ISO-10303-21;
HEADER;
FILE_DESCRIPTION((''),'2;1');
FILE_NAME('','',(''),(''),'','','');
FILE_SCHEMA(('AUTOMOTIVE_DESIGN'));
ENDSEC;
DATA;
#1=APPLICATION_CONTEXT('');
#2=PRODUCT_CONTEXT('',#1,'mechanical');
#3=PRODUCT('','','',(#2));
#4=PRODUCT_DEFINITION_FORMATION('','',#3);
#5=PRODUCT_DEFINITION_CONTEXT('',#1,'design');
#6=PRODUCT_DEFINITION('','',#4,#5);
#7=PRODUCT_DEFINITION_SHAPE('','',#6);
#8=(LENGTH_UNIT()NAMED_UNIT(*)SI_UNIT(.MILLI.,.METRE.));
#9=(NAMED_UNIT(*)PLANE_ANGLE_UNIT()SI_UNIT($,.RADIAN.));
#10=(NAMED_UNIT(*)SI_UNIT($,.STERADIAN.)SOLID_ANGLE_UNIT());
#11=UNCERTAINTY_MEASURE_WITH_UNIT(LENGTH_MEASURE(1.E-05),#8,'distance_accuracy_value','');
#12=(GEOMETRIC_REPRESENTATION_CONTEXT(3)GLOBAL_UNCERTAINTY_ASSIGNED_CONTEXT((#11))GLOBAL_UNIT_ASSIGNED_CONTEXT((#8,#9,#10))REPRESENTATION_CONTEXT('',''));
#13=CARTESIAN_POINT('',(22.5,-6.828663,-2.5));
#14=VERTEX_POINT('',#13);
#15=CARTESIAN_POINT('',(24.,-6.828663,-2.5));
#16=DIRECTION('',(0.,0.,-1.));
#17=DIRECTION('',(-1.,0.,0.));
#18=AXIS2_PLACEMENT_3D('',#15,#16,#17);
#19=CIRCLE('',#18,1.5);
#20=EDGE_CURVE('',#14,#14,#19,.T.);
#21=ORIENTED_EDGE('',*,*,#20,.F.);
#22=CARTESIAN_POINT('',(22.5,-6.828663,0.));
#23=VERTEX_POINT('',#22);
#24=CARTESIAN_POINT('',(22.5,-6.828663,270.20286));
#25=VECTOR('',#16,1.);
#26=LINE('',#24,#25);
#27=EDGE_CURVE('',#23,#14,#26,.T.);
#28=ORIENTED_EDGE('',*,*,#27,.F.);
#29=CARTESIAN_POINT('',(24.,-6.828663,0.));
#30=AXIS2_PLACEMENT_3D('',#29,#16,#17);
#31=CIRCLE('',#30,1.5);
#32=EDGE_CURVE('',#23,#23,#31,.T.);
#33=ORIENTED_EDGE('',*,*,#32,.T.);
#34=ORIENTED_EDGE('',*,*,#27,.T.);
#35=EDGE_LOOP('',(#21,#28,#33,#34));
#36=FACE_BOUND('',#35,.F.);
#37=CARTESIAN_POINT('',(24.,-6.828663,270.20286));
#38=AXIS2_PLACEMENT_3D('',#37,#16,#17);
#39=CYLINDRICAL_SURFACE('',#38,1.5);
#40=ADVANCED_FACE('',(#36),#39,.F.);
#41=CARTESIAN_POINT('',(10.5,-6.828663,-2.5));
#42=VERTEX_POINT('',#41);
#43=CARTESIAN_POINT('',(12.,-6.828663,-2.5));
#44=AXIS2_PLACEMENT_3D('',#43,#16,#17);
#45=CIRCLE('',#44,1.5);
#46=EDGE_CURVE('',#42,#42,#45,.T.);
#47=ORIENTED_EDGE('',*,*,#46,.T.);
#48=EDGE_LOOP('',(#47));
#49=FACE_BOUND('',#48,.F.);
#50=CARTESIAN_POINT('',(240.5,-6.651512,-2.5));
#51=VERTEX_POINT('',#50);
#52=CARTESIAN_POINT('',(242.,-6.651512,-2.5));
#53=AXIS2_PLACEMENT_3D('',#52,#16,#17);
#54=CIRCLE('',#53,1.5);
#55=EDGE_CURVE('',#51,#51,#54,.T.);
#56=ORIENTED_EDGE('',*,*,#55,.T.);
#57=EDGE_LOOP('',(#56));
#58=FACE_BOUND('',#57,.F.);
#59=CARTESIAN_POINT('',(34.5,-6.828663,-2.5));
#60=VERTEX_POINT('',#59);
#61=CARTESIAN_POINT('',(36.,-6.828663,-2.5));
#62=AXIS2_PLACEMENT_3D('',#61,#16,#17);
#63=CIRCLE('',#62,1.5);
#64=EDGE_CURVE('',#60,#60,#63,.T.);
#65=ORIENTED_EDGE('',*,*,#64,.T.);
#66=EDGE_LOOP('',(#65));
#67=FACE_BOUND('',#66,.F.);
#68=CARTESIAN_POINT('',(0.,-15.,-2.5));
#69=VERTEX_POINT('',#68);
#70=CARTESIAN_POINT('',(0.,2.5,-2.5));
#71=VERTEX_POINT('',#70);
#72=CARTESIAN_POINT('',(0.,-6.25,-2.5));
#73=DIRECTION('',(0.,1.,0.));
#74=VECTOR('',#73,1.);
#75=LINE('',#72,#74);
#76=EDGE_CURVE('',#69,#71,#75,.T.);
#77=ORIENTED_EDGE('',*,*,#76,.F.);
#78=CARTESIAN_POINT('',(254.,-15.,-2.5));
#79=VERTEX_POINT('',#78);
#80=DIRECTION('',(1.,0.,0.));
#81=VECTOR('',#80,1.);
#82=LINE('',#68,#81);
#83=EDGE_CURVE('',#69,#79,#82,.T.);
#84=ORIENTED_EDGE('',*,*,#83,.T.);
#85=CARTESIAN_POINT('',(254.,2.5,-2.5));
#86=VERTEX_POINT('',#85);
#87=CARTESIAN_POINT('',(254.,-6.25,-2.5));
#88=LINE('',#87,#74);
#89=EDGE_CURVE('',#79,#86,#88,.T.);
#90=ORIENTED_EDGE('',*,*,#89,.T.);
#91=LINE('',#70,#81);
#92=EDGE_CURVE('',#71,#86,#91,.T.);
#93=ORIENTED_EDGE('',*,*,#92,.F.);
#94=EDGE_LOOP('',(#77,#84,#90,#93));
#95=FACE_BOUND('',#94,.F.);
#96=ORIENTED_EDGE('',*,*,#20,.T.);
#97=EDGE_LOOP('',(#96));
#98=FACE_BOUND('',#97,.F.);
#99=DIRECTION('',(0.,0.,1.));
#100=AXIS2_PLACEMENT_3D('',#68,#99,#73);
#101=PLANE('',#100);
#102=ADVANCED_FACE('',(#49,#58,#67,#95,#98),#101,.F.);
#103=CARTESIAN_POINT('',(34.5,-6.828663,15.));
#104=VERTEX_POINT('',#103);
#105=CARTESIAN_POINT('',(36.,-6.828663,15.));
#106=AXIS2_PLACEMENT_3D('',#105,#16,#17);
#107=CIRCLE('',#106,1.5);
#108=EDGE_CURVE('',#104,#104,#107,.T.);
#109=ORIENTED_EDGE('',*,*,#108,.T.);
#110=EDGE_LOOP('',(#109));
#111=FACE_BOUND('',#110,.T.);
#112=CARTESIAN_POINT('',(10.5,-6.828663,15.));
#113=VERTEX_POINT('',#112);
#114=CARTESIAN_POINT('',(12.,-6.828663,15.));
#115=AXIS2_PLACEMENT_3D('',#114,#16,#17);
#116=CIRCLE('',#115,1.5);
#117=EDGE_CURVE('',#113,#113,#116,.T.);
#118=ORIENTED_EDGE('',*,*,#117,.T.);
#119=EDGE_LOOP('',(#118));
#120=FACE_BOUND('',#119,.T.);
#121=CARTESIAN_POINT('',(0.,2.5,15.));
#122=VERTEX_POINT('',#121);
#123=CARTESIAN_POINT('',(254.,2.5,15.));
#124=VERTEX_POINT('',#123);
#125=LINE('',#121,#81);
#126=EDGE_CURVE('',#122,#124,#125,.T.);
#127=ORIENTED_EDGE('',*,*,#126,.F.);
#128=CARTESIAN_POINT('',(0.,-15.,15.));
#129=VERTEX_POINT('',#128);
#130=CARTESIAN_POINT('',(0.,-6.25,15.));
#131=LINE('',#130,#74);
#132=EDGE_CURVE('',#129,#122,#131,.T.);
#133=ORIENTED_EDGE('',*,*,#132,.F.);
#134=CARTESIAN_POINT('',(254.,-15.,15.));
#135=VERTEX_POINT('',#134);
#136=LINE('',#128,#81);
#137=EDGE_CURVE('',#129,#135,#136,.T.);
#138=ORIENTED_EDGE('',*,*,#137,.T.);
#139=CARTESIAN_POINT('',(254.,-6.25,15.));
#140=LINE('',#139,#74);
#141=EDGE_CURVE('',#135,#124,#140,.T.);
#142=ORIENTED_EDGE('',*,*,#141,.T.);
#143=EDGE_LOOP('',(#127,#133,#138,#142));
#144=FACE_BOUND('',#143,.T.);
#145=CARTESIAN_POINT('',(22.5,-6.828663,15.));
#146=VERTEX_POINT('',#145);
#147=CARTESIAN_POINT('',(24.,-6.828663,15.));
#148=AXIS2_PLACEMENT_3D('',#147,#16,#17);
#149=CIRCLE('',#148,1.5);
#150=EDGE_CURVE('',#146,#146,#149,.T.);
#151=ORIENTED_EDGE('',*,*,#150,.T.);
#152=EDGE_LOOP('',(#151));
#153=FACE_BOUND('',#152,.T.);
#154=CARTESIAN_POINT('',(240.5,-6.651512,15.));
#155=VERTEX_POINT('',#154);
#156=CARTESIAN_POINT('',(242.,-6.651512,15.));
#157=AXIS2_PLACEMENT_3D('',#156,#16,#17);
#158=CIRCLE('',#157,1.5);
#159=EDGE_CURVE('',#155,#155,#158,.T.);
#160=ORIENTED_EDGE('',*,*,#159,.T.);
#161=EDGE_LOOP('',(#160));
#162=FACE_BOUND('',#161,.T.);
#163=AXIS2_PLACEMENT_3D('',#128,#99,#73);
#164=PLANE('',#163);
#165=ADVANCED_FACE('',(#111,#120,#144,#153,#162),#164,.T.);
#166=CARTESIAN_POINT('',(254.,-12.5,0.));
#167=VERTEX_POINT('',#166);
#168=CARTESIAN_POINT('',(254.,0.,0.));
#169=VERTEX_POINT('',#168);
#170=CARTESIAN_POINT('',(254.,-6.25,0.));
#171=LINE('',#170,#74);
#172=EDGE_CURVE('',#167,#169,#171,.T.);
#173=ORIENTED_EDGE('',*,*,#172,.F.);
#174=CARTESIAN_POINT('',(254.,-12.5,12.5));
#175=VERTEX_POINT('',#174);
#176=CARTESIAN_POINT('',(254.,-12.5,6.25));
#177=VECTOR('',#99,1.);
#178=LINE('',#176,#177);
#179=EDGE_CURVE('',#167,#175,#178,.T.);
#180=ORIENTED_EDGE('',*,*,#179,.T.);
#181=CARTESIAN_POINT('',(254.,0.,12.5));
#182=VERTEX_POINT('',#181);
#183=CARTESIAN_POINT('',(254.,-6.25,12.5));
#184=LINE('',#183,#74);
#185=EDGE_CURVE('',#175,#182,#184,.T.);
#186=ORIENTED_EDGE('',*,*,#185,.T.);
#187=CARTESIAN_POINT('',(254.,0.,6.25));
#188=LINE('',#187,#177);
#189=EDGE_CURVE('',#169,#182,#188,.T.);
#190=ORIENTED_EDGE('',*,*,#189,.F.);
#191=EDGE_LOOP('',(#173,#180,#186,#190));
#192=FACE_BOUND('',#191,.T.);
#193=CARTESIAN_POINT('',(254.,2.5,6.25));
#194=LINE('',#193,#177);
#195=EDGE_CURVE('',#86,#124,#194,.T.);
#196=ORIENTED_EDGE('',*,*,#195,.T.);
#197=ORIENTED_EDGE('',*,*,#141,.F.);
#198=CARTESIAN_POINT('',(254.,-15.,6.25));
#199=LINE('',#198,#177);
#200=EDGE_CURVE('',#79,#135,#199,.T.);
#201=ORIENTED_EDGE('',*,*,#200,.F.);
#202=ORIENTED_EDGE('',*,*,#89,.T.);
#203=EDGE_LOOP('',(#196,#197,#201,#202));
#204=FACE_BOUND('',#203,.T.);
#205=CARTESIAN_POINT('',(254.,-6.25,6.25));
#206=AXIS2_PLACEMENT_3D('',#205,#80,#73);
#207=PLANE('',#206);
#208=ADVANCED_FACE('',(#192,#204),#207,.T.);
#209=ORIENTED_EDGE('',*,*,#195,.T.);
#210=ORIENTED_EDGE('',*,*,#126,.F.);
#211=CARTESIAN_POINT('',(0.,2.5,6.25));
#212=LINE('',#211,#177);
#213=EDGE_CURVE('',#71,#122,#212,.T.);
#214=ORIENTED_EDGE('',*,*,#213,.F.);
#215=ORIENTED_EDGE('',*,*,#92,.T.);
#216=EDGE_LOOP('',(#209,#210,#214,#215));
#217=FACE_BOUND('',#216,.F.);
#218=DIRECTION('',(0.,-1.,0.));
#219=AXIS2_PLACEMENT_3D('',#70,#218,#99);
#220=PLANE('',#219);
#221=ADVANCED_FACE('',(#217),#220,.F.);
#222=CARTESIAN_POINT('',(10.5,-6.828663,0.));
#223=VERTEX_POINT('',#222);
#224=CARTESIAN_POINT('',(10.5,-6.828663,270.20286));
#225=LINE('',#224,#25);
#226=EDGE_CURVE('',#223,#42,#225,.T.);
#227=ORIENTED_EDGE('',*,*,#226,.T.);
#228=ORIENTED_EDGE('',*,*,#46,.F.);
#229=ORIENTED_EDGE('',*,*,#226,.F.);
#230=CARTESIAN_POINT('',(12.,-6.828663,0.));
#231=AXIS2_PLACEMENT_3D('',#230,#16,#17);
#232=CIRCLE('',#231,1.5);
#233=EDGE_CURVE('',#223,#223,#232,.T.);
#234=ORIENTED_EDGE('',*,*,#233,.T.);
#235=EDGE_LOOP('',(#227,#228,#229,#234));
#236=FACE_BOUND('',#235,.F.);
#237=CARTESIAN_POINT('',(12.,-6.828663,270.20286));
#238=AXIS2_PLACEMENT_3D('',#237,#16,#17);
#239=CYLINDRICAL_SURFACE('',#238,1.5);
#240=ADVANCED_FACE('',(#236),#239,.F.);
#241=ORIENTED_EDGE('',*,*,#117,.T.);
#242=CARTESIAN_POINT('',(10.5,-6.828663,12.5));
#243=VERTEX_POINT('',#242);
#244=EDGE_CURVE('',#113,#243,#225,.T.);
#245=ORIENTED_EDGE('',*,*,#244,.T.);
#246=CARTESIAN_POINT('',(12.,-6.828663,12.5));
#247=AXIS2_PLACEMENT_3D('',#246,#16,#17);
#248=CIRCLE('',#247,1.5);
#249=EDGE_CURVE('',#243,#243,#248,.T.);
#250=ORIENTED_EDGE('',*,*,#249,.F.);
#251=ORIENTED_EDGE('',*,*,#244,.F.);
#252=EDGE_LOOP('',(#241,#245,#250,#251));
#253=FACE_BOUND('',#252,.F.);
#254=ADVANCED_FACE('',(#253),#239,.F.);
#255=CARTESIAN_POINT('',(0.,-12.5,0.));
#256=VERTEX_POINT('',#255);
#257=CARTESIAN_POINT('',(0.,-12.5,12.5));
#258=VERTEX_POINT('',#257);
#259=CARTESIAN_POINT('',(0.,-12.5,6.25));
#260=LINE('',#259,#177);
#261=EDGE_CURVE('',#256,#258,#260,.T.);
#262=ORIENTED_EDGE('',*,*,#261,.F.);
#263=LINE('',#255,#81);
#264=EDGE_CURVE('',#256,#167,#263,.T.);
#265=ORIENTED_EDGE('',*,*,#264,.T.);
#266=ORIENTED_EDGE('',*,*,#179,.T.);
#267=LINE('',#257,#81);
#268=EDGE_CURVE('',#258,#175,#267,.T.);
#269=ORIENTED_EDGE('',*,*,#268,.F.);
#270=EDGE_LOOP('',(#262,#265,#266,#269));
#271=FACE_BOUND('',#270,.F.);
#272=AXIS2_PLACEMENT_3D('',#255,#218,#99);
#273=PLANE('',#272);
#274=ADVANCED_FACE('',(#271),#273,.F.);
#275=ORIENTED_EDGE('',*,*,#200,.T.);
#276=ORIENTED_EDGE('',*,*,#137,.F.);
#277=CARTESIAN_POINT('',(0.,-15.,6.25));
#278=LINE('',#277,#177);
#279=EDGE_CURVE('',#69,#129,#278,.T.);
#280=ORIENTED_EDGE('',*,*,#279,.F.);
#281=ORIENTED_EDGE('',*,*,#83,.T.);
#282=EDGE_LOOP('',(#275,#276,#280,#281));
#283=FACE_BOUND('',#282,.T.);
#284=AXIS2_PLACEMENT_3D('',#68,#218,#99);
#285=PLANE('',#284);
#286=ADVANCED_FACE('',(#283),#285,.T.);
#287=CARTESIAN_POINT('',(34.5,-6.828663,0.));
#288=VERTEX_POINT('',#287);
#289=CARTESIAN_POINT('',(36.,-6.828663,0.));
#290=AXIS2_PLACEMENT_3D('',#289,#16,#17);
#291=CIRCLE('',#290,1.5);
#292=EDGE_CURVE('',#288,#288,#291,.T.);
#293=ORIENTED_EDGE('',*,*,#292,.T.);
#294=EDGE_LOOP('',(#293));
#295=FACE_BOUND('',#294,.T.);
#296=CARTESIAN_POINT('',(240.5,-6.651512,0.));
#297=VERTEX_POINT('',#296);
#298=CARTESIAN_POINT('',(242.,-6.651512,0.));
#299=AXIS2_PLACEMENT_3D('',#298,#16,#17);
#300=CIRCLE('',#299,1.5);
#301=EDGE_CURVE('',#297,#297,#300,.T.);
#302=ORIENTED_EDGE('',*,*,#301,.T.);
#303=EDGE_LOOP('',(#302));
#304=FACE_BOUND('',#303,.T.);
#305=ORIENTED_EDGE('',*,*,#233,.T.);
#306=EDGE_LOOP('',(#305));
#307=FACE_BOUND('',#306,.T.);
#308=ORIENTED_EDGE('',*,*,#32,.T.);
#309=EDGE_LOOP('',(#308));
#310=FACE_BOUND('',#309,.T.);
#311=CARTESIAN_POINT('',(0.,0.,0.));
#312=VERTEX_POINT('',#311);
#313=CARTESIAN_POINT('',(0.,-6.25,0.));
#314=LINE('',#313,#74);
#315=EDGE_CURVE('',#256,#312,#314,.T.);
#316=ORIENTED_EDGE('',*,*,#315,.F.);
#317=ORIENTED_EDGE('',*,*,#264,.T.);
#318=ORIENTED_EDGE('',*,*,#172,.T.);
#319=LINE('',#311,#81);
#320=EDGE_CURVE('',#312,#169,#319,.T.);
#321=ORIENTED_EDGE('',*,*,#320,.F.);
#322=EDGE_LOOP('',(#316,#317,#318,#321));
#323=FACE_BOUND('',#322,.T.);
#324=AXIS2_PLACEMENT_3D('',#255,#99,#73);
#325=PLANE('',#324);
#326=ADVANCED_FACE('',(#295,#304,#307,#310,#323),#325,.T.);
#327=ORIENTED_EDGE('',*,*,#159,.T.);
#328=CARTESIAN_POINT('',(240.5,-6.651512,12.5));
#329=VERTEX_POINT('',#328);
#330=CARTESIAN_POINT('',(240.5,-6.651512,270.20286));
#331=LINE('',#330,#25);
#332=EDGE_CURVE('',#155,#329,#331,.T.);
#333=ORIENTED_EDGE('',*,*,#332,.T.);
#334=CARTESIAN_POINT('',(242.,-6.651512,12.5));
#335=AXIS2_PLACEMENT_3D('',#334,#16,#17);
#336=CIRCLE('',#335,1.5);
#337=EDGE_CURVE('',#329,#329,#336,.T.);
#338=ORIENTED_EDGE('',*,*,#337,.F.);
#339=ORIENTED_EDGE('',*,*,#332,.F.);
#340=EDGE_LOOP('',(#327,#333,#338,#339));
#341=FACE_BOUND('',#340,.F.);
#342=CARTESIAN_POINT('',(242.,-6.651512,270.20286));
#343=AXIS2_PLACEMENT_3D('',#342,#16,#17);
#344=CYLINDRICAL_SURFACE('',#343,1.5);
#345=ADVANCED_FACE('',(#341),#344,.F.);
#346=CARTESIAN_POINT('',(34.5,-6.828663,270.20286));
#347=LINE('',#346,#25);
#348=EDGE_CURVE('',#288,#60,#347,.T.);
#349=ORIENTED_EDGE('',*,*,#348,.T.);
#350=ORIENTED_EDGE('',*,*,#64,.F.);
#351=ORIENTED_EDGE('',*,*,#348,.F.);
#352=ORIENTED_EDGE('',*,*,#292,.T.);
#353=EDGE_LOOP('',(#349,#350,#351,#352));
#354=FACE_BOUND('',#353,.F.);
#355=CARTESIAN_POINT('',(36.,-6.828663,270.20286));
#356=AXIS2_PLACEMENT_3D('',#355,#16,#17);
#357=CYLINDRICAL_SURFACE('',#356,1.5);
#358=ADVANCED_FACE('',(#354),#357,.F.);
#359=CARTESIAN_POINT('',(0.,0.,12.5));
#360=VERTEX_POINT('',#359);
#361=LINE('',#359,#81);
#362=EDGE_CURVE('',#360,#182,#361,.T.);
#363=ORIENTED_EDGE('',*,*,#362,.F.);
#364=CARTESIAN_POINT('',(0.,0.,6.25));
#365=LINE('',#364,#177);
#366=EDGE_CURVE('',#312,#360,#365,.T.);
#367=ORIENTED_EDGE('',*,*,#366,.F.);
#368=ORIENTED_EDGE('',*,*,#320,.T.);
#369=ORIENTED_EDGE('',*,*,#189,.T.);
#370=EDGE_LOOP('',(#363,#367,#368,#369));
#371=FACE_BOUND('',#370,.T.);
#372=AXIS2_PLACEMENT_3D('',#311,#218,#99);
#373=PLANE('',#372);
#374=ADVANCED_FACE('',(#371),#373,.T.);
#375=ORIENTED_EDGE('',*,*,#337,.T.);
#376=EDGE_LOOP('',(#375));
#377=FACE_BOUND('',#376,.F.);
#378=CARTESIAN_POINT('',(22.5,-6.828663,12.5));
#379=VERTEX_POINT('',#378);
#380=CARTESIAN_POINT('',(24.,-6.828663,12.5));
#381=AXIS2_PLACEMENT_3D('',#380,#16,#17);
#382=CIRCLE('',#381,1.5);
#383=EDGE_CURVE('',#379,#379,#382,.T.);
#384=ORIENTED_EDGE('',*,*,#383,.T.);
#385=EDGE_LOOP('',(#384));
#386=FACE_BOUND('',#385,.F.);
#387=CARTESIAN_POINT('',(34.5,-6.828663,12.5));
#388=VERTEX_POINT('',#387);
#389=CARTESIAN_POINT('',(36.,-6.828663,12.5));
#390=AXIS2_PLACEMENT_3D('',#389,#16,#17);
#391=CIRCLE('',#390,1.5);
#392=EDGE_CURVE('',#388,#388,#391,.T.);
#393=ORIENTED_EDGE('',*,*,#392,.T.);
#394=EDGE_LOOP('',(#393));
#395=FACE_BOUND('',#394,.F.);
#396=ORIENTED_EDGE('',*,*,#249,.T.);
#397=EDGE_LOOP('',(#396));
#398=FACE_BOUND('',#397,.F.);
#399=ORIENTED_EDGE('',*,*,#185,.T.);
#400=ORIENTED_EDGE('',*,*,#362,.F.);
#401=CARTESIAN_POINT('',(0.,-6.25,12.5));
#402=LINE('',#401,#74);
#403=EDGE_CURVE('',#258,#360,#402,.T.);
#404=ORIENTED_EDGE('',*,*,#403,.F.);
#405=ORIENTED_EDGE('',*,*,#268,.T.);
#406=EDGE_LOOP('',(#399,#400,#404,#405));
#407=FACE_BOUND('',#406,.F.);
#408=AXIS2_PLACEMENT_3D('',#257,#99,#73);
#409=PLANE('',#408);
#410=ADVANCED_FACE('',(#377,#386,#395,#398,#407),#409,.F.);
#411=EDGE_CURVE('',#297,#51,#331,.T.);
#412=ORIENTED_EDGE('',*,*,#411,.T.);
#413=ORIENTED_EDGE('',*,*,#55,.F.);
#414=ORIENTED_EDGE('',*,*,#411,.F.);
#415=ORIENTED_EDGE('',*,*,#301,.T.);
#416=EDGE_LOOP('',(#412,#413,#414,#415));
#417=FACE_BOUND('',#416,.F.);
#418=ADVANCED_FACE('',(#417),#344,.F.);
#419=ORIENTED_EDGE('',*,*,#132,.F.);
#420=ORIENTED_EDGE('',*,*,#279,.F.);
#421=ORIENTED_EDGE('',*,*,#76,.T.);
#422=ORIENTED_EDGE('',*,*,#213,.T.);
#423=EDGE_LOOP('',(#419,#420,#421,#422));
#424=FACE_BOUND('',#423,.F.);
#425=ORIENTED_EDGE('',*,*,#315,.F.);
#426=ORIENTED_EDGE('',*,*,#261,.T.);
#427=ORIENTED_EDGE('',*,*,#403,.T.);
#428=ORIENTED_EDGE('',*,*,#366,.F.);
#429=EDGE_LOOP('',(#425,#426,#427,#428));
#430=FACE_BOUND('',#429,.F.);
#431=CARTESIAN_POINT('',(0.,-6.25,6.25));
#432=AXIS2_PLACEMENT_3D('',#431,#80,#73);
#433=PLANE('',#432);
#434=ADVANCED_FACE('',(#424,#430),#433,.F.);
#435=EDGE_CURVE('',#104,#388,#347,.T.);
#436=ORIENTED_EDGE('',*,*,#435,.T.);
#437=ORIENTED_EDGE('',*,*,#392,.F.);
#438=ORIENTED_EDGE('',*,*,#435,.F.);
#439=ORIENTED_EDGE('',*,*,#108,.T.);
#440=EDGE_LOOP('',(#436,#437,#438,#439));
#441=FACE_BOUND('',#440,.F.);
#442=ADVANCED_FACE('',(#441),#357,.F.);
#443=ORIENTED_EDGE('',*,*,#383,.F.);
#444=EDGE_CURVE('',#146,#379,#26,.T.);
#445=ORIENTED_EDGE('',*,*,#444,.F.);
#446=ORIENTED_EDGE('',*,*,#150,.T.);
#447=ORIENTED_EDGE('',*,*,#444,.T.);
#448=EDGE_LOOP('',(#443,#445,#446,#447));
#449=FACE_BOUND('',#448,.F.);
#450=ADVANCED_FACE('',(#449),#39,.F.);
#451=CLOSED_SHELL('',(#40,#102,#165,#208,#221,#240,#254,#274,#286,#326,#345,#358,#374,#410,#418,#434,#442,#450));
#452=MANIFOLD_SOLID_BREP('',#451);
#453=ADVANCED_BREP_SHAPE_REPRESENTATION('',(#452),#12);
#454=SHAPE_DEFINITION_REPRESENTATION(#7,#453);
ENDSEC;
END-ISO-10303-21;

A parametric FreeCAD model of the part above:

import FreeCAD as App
import Part
import Sketcher
from FreeCAD import Vector


def add_polygon(sketch, points):
    """Adds a closed chain of lines whose ends are joined by coincident constraints."""
    first, n = sketch.GeometryCount, len(points)
    for a, b in zip(points, points[1:] + points[:1]):
        sketch.addGeometry(Part.LineSegment(App.Vector(*a, 0), App.Vector(*b, 0)), False)
    for i in range(n):
        sketch.addConstraint(Sketcher.Constraint("Coincident", first + i, 2, first + (i + 1) % n, 1))

doc = App.newDocument("Part")
body = doc.addObject("PartDesign::Body", "Body")

sketch1 = body.newObject("Sketcher::SketchObject", "Sketch")
sketch1.AttachmentSupport = (doc.getObject("YZ_Plane"), [""])
sketch1.MapMode = "FlatFace"
add_polygon(sketch1, [(-15, 15), (-15, -2.5), (2.5, -2.5), (2.5, 15)])
add_polygon(sketch1, [(0, 0), (-12.5, 0), (-12.5, 12.5), (0, 12.5)])
sketch1.addConstraint([
    Sketcher.Constraint("Vertical", 0),
    Sketcher.Constraint("Horizontal", 1),
    Sketcher.Constraint("Vertical", 2),
    Sketcher.Constraint("Horizontal", 3),
    Sketcher.Constraint("Horizontal", 4),
    Sketcher.Constraint("Vertical", 5),
    Sketcher.Constraint("Horizontal", 6),
    Sketcher.Constraint("Vertical", 7),
    Sketcher.Constraint("Coincident", 7, 2, -1, 1),
    Sketcher.Constraint("Equal", 3, 0),
    Sketcher.Constraint("Equal", 6, 5),
    Sketcher.Constraint("DistanceX", 1, 1, 1, 2, 17.5),
    Sketcher.Constraint("DistanceX", 4, 2, 4, 1, 12.5),
    Sketcher.Constraint("DistanceX", 0, 2, -1, 1, 15.0),
    Sketcher.Constraint("DistanceY", -1, 1, 2, 2, 15.0),
])
pad1 = body.newObject("PartDesign::Pad", "Pad")
pad1.Profile = sketch1
pad1.Length = 254

sketch2 = body.newObject("Sketcher::SketchObject", "Sketch001")
sketch2.AttachmentSupport = (doc.getObject("XY_Plane"), [""])
sketch2.MapMode = "FlatFace"
sketch2.AttachmentOffset = App.Placement(Vector(0, 0, 15), App.Rotation())
sketch2.addGeometry([
    Part.Circle(Vector(12, -6.828663, 0), Vector(0, 0, 1), 1.5),
    Part.Circle(Vector(24, -6.828663, 0), Vector(0, 0, 1), 1.5),
    Part.Circle(Vector(36, -6.828663, 0), Vector(0, 0, 1), 1.5),
    Part.Circle(Vector(242, -6.651512, 0), Vector(0, 0, 1), 1.5),
], False)
sketch2.addConstraint([
    Sketcher.Constraint("Equal", 0, 1),
    Sketcher.Constraint("Equal", 1, 2),
    Sketcher.Constraint("Equal", 2, 3),
    Sketcher.Constraint("Horizontal", 0, 3, 1, 3),
    Sketcher.Constraint("Horizontal", 1, 3, 2, 3),
    Sketcher.Constraint("Diameter", 0, 3.0),
    Sketcher.Constraint("DistanceX", -1, 1, 0, 3, 12.0),
    Sketcher.Constraint("DistanceX", -1, 1, 1, 3, 24.0),
    Sketcher.Constraint("DistanceX", -1, 1, 2, 3, 36.0),
    Sketcher.Constraint("DistanceX", -1, 1, 3, 3, 242.0),
    Sketcher.Constraint("DistanceY", 2, 3, 3, 3, 0.177151),
    Sketcher.Constraint("DistanceY", 0, 3, -1, 1, 6.828663),
])
doc.recompute()
hole = body.newObject("PartDesign::Hole", "Hole")
hole.Profile = sketch2
hole.ThreadType = "None"
hole.Diameter = 3
hole.DepthType = "ThroughAll"

doc.recompute()
